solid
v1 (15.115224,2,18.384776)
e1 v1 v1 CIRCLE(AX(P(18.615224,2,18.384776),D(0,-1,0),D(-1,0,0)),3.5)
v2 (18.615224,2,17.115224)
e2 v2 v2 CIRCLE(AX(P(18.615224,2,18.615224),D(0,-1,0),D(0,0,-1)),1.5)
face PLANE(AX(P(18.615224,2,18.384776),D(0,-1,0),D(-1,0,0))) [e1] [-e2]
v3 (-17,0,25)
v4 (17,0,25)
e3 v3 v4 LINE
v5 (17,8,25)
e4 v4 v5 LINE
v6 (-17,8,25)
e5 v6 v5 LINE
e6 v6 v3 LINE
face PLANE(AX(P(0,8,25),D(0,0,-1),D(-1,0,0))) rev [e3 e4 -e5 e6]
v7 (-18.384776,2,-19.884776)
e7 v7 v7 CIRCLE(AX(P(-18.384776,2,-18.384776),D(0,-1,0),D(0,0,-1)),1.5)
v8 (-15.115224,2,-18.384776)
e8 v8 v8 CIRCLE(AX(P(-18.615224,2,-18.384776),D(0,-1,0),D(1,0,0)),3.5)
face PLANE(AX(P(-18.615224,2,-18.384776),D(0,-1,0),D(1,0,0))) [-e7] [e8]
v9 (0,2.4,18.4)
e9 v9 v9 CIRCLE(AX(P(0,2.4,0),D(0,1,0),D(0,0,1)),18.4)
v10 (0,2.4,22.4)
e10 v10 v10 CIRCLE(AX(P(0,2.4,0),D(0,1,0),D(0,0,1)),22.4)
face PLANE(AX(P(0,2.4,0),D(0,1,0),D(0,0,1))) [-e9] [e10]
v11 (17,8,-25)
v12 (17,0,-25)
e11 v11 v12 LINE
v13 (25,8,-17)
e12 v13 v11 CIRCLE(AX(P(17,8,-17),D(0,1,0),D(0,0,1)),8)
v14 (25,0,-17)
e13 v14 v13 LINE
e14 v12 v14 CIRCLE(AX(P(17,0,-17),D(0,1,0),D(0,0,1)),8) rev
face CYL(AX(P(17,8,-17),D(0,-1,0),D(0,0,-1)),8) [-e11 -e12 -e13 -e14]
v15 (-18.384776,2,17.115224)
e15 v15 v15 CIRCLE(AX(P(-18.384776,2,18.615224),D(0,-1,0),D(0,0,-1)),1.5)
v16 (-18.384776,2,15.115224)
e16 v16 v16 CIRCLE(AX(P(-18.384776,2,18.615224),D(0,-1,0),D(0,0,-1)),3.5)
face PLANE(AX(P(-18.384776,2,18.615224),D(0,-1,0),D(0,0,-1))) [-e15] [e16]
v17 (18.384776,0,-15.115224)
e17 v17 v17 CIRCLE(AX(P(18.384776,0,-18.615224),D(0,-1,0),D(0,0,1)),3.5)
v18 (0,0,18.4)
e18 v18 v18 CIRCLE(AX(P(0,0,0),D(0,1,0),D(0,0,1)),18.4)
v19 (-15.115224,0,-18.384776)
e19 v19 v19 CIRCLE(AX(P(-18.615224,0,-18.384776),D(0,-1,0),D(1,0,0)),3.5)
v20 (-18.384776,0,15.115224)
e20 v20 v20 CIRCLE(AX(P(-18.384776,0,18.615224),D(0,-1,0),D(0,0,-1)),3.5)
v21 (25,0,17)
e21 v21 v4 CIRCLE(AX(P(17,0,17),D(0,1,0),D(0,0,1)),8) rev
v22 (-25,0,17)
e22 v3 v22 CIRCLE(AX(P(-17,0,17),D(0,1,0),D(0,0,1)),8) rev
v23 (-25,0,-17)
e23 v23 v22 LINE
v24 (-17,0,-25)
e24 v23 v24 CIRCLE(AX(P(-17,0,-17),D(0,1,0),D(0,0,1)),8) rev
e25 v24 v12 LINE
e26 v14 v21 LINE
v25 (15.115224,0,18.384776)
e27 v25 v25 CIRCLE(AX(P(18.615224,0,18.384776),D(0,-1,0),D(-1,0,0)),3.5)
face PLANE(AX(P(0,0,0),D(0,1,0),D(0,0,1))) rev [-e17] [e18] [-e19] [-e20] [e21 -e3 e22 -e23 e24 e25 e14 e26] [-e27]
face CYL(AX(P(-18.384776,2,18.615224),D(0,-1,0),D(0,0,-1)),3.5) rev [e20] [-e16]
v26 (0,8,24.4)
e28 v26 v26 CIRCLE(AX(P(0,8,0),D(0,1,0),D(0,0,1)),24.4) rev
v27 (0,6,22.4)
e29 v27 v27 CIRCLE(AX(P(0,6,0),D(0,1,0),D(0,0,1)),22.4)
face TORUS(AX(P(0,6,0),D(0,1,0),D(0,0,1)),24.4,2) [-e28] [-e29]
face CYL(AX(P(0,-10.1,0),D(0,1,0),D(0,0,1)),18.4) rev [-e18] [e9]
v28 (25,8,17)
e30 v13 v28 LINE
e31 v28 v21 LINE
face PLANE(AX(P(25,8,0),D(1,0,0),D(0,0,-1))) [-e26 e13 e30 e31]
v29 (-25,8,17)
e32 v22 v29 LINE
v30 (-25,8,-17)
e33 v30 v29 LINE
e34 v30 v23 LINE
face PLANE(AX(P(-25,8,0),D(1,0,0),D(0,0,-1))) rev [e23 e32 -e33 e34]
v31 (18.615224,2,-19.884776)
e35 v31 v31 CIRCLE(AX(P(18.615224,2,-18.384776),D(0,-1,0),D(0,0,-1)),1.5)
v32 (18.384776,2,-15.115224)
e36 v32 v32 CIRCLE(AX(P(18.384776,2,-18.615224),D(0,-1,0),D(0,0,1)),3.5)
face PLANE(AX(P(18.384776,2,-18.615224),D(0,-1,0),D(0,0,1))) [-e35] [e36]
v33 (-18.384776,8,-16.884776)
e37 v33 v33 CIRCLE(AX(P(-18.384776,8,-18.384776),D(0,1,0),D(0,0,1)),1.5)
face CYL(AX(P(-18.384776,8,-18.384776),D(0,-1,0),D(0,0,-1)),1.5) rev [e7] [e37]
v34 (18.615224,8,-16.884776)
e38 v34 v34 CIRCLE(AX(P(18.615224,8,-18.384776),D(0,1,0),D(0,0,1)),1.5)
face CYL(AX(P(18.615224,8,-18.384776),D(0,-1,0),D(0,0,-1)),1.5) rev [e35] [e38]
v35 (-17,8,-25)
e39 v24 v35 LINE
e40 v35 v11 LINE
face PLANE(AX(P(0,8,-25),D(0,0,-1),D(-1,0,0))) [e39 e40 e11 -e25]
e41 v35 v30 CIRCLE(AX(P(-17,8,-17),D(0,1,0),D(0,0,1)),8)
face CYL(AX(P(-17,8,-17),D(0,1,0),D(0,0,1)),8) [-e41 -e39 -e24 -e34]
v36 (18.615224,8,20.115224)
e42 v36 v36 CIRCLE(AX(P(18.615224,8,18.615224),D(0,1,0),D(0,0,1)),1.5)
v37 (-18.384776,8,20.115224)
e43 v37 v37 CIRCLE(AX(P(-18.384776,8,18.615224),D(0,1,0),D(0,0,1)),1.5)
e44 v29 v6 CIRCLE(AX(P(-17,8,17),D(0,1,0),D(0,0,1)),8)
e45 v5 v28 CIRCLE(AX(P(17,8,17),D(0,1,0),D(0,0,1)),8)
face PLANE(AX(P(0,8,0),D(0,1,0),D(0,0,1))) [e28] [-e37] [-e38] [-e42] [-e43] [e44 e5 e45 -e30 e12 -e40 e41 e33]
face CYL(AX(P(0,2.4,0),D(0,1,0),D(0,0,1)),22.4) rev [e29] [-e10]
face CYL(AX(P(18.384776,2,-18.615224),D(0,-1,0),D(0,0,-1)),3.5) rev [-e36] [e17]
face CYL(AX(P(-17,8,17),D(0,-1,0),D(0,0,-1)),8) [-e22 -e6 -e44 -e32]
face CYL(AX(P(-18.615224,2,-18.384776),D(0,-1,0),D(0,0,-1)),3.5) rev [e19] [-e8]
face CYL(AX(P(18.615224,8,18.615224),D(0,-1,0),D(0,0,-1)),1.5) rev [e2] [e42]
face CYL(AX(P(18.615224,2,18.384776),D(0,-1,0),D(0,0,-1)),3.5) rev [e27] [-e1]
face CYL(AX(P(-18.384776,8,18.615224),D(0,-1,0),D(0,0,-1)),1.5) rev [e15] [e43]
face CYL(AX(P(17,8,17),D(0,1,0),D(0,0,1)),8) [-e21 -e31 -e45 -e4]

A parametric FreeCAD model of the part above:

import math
import FreeCAD as App
import Part
import Sketcher
Q = App.Units.Quantity


def edges_at(feature, points):
    """Names of the edges that pass closest to the given points."""
    edges = feature.Shape.Edges
    near = lambda p: min(range(len(edges)), key=lambda i: edges[i].distToShape(Part.Vertex(*p))[0])
    return sorted({f"Edge{near(p) + 1}" for p in points})

doc = App.newDocument("Part")
body = doc.addObject("PartDesign::Body", "Body")

sketch1 = doc.addObject("Sketcher::SketchObject", "Sketch")
body.addObject(sketch1)
sketch1.AttachmentSupport = (doc.XZ_Plane, [""])
sketch1.MapMode = "FlatFace"
sketch1.addGeometry(Part.Circle(App.Vector(0, 0, 0), App.Vector(0, 0, 1), 25), False)
sketch1.addConstraint(Sketcher.Constraint("Coincident", 0, 3, -1, 1))
sketch1.addConstraint(Sketcher.Constraint("Diameter", 0, Q("50 mm")))
pad1 = doc.addObject("PartDesign::Pad", "Pad")
body.addObject(pad1)
pad1.Profile = sketch1
pad1.Length = 8
pad1.Reversed = True

sketch2 = doc.addObject("Sketcher::SketchObject", "Sketch001")
body.addObject(sketch2)
sketch2.AttachmentSupport = (doc.XZ_Plane, [""])
sketch2.MapMode = "FlatFace"
sketch2.AttachmentOffset = App.Placement(App.Vector(0, 0, -8), App.Rotation())
sketch2.addGeometry(Part.Circle(App.Vector(0, 0, 0), App.Vector(0, 0, 1), 22), False)
sketch2.addConstraint(Sketcher.Constraint("Coincident", 0, 3, -1, 1))
sketch2.addConstraint(Sketcher.Constraint("Diameter", 0, Q("44.8 mm")))
pocket1 = doc.addObject("PartDesign::Pocket", "Pocket")
body.addObject(pocket1)
pocket1.Profile = sketch2
pocket1.Length = 5.6
pocket1.Reversed = True

sketch3 = doc.addObject("Sketcher::SketchObject", "Sketch002")
body.addObject(sketch3)
sketch3.AttachmentSupport = (doc.XZ_Plane, [""])
sketch3.MapMode = "FlatFace"
sketch3.AttachmentOffset = App.Placement(App.Vector(0, 0, -2.4), App.Rotation())
sketch3.addGeometry(Part.Circle(App.Vector(0, 0, 0), App.Vector(0, 0, 1), 18), False)
sketch3.addConstraint(Sketcher.Constraint("Coincident", 0, 3, -1, 1))
sketch3.addConstraint(Sketcher.Constraint("Diameter", 0, Q("36.8 mm")))
pocket2 = doc.addObject("PartDesign::Pocket", "Pocket001")
body.addObject(pocket2)
pocket2.Profile = sketch3
pocket2.Length = 12.5
pocket2.Reversed = True

sketch4 = doc.addObject("Sketcher::SketchObject", "Sketch003")
body.addObject(sketch4)
sketch4.AttachmentSupport = (doc.XZ_Plane, [""])
sketch4.MapMode = "FlatFace"
sketch4.addGeometry(Part.LineSegment(App.Vector(0, -25, 0), App.Vector(-25, -25, 0)), False)
sketch4.addGeometry(Part.LineSegment(App.Vector(-25, -25, 0), App.Vector(-25, 0, 0)), False)
sketch4.addGeometry(Part.ArcOfCircle(Part.Circle(App.Vector(0, 0, 0), App.Vector(0, 0, 1), 25), math.radians(-180), math.radians(-138)), False)
sketch4.addGeometry(Part.ArcOfCircle(Part.Circle(App.Vector(-18.4, -18.4, 0), App.Vector(0, 0, 1), 1.5), math.radians(92), math.radians(358)), False)
sketch4.addGeometry(Part.ArcOfCircle(Part.Circle(App.Vector(0, 0, 0), App.Vector(0, 0, 1), 25), math.radians(-132), math.radians(-90)), False)
sketch4.addGeometry(Part.LineSegment(App.Vector(25, -25, 0), App.Vector(0, -25, 0)), False)
sketch4.addGeometry(Part.ArcOfCircle(Part.Circle(App.Vector(0, 0, 0), App.Vector(0, 0, 1), 25), math.radians(-90), math.radians(-47)), False)
sketch4.addGeometry(Part.ArcOfCircle(Part.Circle(App.Vector(18.6, -18.4, 0), App.Vector(0, 0, 1), 1.5), math.radians(173), math.radians(457)), False)
sketch4.addGeometry(Part.ArcOfCircle(Part.Circle(App.Vector(0, 0, 0), App.Vector(0, 0, 1), 25), math.radians(-43), math.radians(0)), False)
sketch4.addGeometry(Part.LineSegment(App.Vector(25, 0, 0), App.Vector(25, -25, 0)), False)
sketch4.addGeometry(Part.ArcOfCircle(Part.Circle(App.Vector(0, 0, 0), App.Vector(0, 0, 1), 25), math.radians(137), math.radians(180)), False)
sketch4.addGeometry(Part.LineSegment(App.Vector(-25, 0, 0), App.Vector(-25, 25, 0)), False)
sketch4.addGeometry(Part.LineSegment(App.Vector(-25, 25, 0), App.Vector(0, 25, 0)), False)
sketch4.addGeometry(Part.ArcOfCircle(Part.Circle(App.Vector(0, 0, 0), App.Vector(0, 0, 1), 25), math.radians(90), math.radians(133)), False)
sketch4.addGeometry(Part.ArcOfCircle(Part.Circle(App.Vector(-18.4, 18.6, 0), App.Vector(0, 0, 1), 1.5), math.radians(-7), math.radians(277)), False)
sketch4.addGeometry(Part.LineSegment(App.Vector(25, 25, 0), App.Vector(25, 0, 0)), False)
sketch4.addGeometry(Part.ArcOfCircle(Part.Circle(App.Vector(0, 0, 0), App.Vector(0, 0, 1), 25), math.radians(0), math.radians(43)), False)
sketch4.addGeometry(Part.ArcOfCircle(Part.Circle(App.Vector(18.6, 18.6, 0), App.Vector(0, 0, 1), 1.5), math.radians(-108), math.radians(198)), False)
sketch4.addGeometry(Part.ArcOfCircle(Part.Circle(App.Vector(0, 0, 0), App.Vector(0, 0, 1), 25), math.radians(47), math.radians(90)), False)
sketch4.addGeometry(Part.LineSegment(App.Vector(0, 25, 0), App.Vector(25, 25, 0)), False)
sketch4.addConstraint(Sketcher.Constraint("Coincident", 0, 2, 1, 1))
sketch4.addConstraint(Sketcher.Constraint("Tangent", 1, 2, 2, 1))
sketch4.addConstraint(Sketcher.Constraint("Coincident", 2, 2, 3, 1))
sketch4.addConstraint(Sketcher.Constraint("Coincident", 3, 2, 4, 1))
sketch4.addConstraint(Sketcher.Constraint("Tangent", 4, 2, 0, 1))
sketch4.addConstraint(Sketcher.Constraint("Tangent", 5, 2, 6, 1))
sketch4.addConstraint(Sketcher.Constraint("Coincident", 6, 2, 7, 1))
sketch4.addConstraint(Sketcher.Constraint("Coincident", 7, 2, 8, 1))
sketch4.addConstraint(Sketcher.Constraint("Tangent", 8, 2, 9, 1))
sketch4.addConstraint(Sketcher.Constraint("Coincident", 9, 2, 5, 1))
sketch4.addConstraint(Sketcher.Constraint("Tangent", 10, 2, 11, 1))
sketch4.addConstraint(Sketcher.Constraint("Coincident", 11, 2, 12, 1))
sketch4.addConstraint(Sketcher.Constraint("Tangent", 12, 2, 13, 1))
sketch4.addConstraint(Sketcher.Constraint("Coincident", 13, 2, 14, 1))
sketch4.addConstraint(Sketcher.Constraint("Coincident", 14, 2, 10, 1))
sketch4.addConstraint(Sketcher.Constraint("Tangent", 15, 2, 16, 1))
sketch4.addConstraint(Sketcher.Constraint("Coincident", 16, 2, 17, 1))
sketch4.addConstraint(Sketcher.Constraint("Coincident", 17, 2, 18, 1))
sketch4.addConstraint(Sketcher.Constraint("Tangent", 18, 2, 19, 1))
sketch4.addConstraint(Sketcher.Constraint("Coincident", 19, 2, 15, 1))
sketch4.addConstraint(Sketcher.Constraint("Horizontal", 0))
sketch4.addConstraint(Sketcher.Constraint("Vertical", 1))
sketch4.addConstraint(Sketcher.Constraint("Horizontal", 5))
sketch4.addConstraint(Sketcher.Constraint("Vertical", 9))
sketch4.addConstraint(Sketcher.Constraint("Vertical", 11))
sketch4.addConstraint(Sketcher.Constraint("Horizontal", 12))
sketch4.addConstraint(Sketcher.Constraint("Vertical", 15))
sketch4.addConstraint(Sketcher.Constraint("Horizontal", 19))
sketch4.addConstraint(Sketcher.Constraint("Coincident", 2, 3, -1, 1))
sketch4.addConstraint(Sketcher.Constraint("Coincident", 4, 3, -1, 1))
sketch4.addConstraint(Sketcher.Constraint("Coincident", 6, 3, -1, 1))
sketch4.addConstraint(Sketcher.Constraint("Coincident", 8, 3, -1, 1))
sketch4.addConstraint(Sketcher.Constraint("Coincident", 10, 3, -1, 1))
sketch4.addConstraint(Sketcher.Constraint("Coincident", 13, 3, -1, 1))
sketch4.addConstraint(Sketcher.Constraint("Coincident", 16, 3, -1, 1))
sketch4.addConstraint(Sketcher.Constraint("Coincident", 18, 3, -1, 1))
sketch4.addConstraint(Sketcher.Constraint("Equal", 2, 4))
sketch4.addConstraint(Sketcher.Constraint("Equal", 4, 6))
sketch4.addConstraint(Sketcher.Constraint("Equal", 3, 7))
sketch4.addConstraint(Sketcher.Constraint("Equal", 6, 8))
sketch4.addConstraint(Sketcher.Constraint("Equal", 8, 10))
sketch4.addConstraint(Sketcher.Constraint("Equal", 10, 13))
sketch4.addConstraint(Sketcher.Constraint("Equal", 7, 14))
sketch4.addConstraint(Sketcher.Constraint("Equal", 13, 16))
sketch4.addConstraint(Sketcher.Constraint("Equal", 14, 17))
sketch4.addConstraint(Sketcher.Constraint("Equal", 16, 18))
sketch4.addConstraint(Sketcher.Constraint("Horizontal", 3, 3, 7, 3))
sketch4.addConstraint(Sketcher.Constraint("Horizontal", 14, 3, 17, 3))
sketch4.addConstraint(Sketcher.Constraint("Vertical", 3, 3, 14, 3))
sketch4.addConstraint(Sketcher.Constraint("Vertical", 7, 3, 17, 3))
sketch4.addConstraint(Sketcher.Constraint("Radius", 2, Q("25 mm")))
sketch4.addConstraint(Sketcher.Constraint("Radius", 3, Q("1.5 mm")))
sketch4.addConstraint(Sketcher.Constraint("DistanceX", 3, 3, 7, 3, Q("37 mm")))
sketch4.addConstraint(Sketcher.Constraint("DistanceY", 2, 2, -1, 1, Q("16.885641 mm")))
sketch4.addConstraint(Sketcher.Constraint("DistanceX", 3, 2, -1, 1, Q("16.885641 mm")))
sketch4.addConstraint(Sketcher.Constraint("DistanceX", 13, 2, -1, 1, Q("16.89683 mm")))
pad2 = doc.addObject("PartDesign::Pad", "Pad001")
body.addObject(pad2)
pad2.Profile = sketch4
pad2.Length = 8
pad2.Reversed = True
doc.recompute()

fillet = doc.addObject("PartDesign::Fillet", "Fillet")
body.addObject(fillet)
fillet.Base = (pad2, edges_at(pad2, [
    (-25, 4, -25),
    (25, 4, -25),
    (-25, 4, 25),
    (25, 4, 25),
]))
fillet.Radius = 8

sketch5 = doc.addObject("Sketcher::SketchObject", "Sketch004")
body.addObject(sketch5)
sketch5.AttachmentSupport = (doc.XZ_Plane, [""])
sketch5.MapMode = "FlatFace"
sketch5.AttachmentOffset = App.Placement(App.Vector(0, 0, 7), App.Rotation())
sketch5.addGeometry(Part.Circle(App.Vector(-18.4, -18.4, 0), App.Vector(0, 0, 1), 1.5), False)
sketch5.addGeometry(Part.Circle(App.Vector(18.6, -18.4, 0), App.Vector(0, 0, 1), 1.5), False)
sketch5.addGeometry(Part.Circle(App.Vector(18.6, 18.6, 0), App.Vector(0, 0, 1), 1.5), False)
sketch5.addGeometry(Part.Circle(App.Vector(-18.4, 18.6, 0), App.Vector(0, 0, 1), 1.5), False)
sketch5.addConstraint(Sketcher.Constraint("Equal", 0, 1))
sketch5.addConstraint(Sketcher.Constraint("Equal", 1, 2))
sketch5.addConstraint(Sketcher.Constraint("Equal", 2, 3))
sketch5.addConstraint(Sketcher.Constraint("Horizontal", 0, 3, 1, 3))
sketch5.addConstraint(Sketcher.Constraint("Horizontal", 2, 3, 3, 3))
sketch5.addConstraint(Sketcher.Constraint("Vertical", 1, 3, 2, 3))
sketch5.addConstraint(Sketcher.Constraint("Vertical", 0, 3, 3, 3))
sketch5.addConstraint(Sketcher.Constraint("Diameter", 0, Q("3 mm")))
sketch5.addConstraint(Sketcher.Constraint("DistanceX", 0, 3, 1, 3, Q("37 mm")))
sketch5.addConstraint(Sketcher.Constraint("DistanceY", 1, 3, 2, 3, Q("37 mm")))
sketch5.addConstraint(Sketcher.Constraint("DistanceX", 0, 3, -1, 1, Q("18.384776 mm")))
sketch5.addConstraint(Sketcher.Constraint("DistanceY", 0, 3, -1, 1, Q("18.384776 mm")))
pocket3 = doc.addObject("PartDesign::Pocket", "Pocket002")
body.addObject(pocket3)
pocket3.Profile = sketch5
pocket3.Length = 15
doc.recompute()

fillet2 = doc.addObject("PartDesign::Fillet", "Fillet001")
body.addObject(fillet2)
fillet2.Base = (pocket3, edges_at(pocket3, [(0, 8, -22.4)]))
fillet2.Radius = 2

sketch6 = doc.addObject("Sketcher::SketchObject", "Sketch005")
body.addObject(sketch6)
sketch6.AttachmentSupport = (doc.XZ_Plane, [""])
sketch6.MapMode = "FlatFace"
sketch6.addGeometry(Part.Circle(App.Vector(-18.4, 18.6, 0), App.Vector(0, 0, 1), 3.5), False)
sketch6.addConstraint(Sketcher.Constraint("Diameter", 0, Q("7 mm")))
sketch6.addConstraint(Sketcher.Constraint("DistanceX", 0, 3, -1, 1, Q("18.384776 mm")))
sketch6.addConstraint(Sketcher.Constraint("DistanceY", -1, 1, 0, 3, Q("18.615224 mm")))
pocket4 = doc.addObject("PartDesign::Pocket", "Pocket003")
body.addObject(pocket4)
pocket4.Profile = sketch6
pocket4.Length = 2
doc.recompute()

polarpattern = doc.addObject("PartDesign::PolarPattern", "PolarPattern")
body.addObject(polarpattern)
polarpattern.Originals = [pocket4]
polarpattern.Axis = (doc.Y_Axis, [""])
polarpattern.Angle = 360
polarpattern.Occurrences = 4
body.Tip = polarpattern

doc.recompute()
